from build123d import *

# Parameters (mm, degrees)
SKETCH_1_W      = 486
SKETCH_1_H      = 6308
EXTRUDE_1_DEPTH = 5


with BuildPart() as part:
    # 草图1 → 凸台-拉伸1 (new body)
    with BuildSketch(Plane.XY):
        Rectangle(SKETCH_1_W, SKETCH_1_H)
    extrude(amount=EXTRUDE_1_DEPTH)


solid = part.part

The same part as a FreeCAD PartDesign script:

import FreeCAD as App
import Part
import Sketcher
from FreeCAD import Vector
Q = App.Units.Quantity


def add_polygon(sketch, points):
    """Adds a closed chain of lines whose ends are joined by coincident constraints."""
    first, n = sketch.GeometryCount, len(points)
    for a, b in zip(points, points[1:] + points[:1]):
        sketch.addGeometry(Part.LineSegment(App.Vector(*a, 0), App.Vector(*b, 0)), False)
    for i in range(n):
        sketch.addConstraint(Sketcher.Constraint("Coincident", first + i, 2, first + (i + 1) % n, 1))

doc = App.newDocument("Part")
params = doc.addObject("Spreadsheet::Sheet", "Params")
for row, (alias, value) in enumerate([
    ("sketch1_width", "486 mm"),
    ("sketch1_height", "6308 mm"),
    ("pad1_length", "5 mm"),
], start=1):
    params.set(f"A{row}", alias)
    params.set(f"B{row}", "=" + value)
    params.setAlias(f"B{row}", alias)

body = doc.addObject("PartDesign::Body", "Body")

# Sketch on XY plane
sketch1 = body.newObject("Sketcher::SketchObject", "Sketch")
sketch1.AttachmentSupport = (doc.getObject("XY_Plane"), [""])
sketch1.MapMode = "FlatFace"
add_polygon(sketch1, [(-243, 3154), (-243, -3154), (243, -3154), (243, 3154)])  # lines 0-3
sketch1.addConstraint([
    Sketcher.Constraint("Vertical", 0),
    Sketcher.Constraint("Horizontal", 1),
    Sketcher.Constraint("Vertical", 2),
    Sketcher.Constraint("Horizontal", 3),
    Sketcher.Constraint("Symmetric", 0, 2, 2, 2, -1, 1),
    Sketcher.Constraint("DistanceX", 1, 1, 1, 2, Q("486 mm")),
    Sketcher.Constraint("DistanceY", 0, 2, 0, 1, Q("6308 mm")),
])
sketch1.setExpression("Constraints[9]", "Params.sketch1_width")
sketch1.setExpression("Constraints[10]", "Params.sketch1_height")
pad1 = body.newObject("PartDesign::Pad", "Pad")
pad1.Profile = sketch1
pad1.setExpression("Length", "Params.pad1_length")

doc.recompute()
